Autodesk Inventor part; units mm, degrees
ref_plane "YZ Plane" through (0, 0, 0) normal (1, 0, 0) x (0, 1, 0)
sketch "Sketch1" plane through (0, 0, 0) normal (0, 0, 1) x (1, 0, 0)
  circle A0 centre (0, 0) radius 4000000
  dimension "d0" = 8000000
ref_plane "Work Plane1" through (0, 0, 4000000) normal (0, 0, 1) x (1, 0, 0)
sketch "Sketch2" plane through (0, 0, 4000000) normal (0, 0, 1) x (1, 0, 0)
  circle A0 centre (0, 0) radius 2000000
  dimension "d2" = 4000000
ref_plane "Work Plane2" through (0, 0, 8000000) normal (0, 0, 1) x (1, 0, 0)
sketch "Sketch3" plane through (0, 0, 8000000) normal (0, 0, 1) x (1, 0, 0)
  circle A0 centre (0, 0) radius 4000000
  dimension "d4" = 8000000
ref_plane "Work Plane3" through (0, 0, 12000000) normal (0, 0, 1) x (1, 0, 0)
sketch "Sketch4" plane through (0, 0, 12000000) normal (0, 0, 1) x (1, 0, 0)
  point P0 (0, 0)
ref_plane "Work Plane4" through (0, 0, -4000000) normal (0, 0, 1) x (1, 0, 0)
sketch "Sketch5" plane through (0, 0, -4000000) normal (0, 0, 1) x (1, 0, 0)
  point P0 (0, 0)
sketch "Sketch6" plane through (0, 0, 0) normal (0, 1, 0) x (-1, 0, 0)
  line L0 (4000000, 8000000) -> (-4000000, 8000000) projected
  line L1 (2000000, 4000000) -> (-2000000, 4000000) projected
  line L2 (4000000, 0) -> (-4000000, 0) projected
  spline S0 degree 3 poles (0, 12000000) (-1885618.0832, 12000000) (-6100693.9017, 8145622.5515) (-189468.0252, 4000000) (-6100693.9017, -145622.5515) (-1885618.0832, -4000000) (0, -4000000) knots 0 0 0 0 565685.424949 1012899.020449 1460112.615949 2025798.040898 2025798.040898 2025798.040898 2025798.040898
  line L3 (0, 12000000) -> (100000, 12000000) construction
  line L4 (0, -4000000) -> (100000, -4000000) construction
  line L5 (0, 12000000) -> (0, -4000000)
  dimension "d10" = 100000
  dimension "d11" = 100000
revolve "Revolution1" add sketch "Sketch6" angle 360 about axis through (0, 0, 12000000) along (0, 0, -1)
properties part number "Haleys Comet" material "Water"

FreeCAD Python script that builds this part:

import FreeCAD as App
import Part
import Sketcher

V = App.Vector

doc = App.newDocument("Part")
body = doc.addObject("PartDesign::Body", "Body")

# Sketch on XZ plane
sketch1 = body.newObject("Sketcher::SketchObject", "Sketch")
sketch1.AttachmentSupport = (doc.getObject("XZ_Plane"), [""])
sketch1.MapMode = "FlatFace"
sketch1.addGeometry([
    Part.BSplineCurve([V(0, 12000000, 0), V(1885618.083197, 12000000, 0), V(4239660.201352, 9847401.270174, 0), V(4000000.000045, 7999999.999994, 0)], [4, 4], [0, 565685.424947969], False, 3, [1, 1, 1, 1], False),  # 0
    Part.BSplineCurve([V(4000000.000045, 7999999.999994, 0), V(4000000.000044, 7999999.999991, 0), V(3810531.974883, 6539501.058471, 0), V(2000000.000039, 5269750.529234, 0), V(2000000.000039, 4000000, 0)], [4, 1, 4], [565685.424947969, 565685.424949, 1012899.020449], False, 3, [1, 1, 1, 1, 1], False),  # 1
    Part.BSplineCurve([V(2000000.000039, 4000000, 0), V(2000000.000039, 2730249.470766, 0), V(3810531.974883, 1460498.941529, 0), V(4000000.000044, 0.000009, 0), V(4000000.000045, 0.000006, 0)], [4, 1, 4], [1012899.020449, 1460112.615949, 1460112.61595003], False, 3, [1, 1, 1, 1, 1], False),  # 2
    Part.BSplineCurve([V(4000000.000045, 0.000006, 0), V(4239660.201352, -1847401.270174, 0), V(1885618.083197, -4000000, 0), V(0, -4000000, 0)], [4, 4], [1460112.61595003, 2025798.040898], False, 3, [1, 1, 1, 1], False),  # 3
    Part.LineSegment(V(0, -4000000, 0), V(0, 12000000, 0)),  # 4
], False)
sketch1.addConstraint([
    Sketcher.Constraint("Block", 0),
    Sketcher.Constraint("Block", 1),
    Sketcher.Constraint("Block", 2),
    Sketcher.Constraint("Block", 3),
    Sketcher.Constraint("Coincident", 3, 2, 4, 1),
    Sketcher.Constraint("Coincident", 4, 2, 0, 1),
])
revolution = body.newObject("PartDesign::Revolution", "Revolution")
revolution.Profile = sketch1
revolution.ReferenceAxis = (sketch1, ["V_Axis"])
revolution.Angle = 360

doc.recompute()
